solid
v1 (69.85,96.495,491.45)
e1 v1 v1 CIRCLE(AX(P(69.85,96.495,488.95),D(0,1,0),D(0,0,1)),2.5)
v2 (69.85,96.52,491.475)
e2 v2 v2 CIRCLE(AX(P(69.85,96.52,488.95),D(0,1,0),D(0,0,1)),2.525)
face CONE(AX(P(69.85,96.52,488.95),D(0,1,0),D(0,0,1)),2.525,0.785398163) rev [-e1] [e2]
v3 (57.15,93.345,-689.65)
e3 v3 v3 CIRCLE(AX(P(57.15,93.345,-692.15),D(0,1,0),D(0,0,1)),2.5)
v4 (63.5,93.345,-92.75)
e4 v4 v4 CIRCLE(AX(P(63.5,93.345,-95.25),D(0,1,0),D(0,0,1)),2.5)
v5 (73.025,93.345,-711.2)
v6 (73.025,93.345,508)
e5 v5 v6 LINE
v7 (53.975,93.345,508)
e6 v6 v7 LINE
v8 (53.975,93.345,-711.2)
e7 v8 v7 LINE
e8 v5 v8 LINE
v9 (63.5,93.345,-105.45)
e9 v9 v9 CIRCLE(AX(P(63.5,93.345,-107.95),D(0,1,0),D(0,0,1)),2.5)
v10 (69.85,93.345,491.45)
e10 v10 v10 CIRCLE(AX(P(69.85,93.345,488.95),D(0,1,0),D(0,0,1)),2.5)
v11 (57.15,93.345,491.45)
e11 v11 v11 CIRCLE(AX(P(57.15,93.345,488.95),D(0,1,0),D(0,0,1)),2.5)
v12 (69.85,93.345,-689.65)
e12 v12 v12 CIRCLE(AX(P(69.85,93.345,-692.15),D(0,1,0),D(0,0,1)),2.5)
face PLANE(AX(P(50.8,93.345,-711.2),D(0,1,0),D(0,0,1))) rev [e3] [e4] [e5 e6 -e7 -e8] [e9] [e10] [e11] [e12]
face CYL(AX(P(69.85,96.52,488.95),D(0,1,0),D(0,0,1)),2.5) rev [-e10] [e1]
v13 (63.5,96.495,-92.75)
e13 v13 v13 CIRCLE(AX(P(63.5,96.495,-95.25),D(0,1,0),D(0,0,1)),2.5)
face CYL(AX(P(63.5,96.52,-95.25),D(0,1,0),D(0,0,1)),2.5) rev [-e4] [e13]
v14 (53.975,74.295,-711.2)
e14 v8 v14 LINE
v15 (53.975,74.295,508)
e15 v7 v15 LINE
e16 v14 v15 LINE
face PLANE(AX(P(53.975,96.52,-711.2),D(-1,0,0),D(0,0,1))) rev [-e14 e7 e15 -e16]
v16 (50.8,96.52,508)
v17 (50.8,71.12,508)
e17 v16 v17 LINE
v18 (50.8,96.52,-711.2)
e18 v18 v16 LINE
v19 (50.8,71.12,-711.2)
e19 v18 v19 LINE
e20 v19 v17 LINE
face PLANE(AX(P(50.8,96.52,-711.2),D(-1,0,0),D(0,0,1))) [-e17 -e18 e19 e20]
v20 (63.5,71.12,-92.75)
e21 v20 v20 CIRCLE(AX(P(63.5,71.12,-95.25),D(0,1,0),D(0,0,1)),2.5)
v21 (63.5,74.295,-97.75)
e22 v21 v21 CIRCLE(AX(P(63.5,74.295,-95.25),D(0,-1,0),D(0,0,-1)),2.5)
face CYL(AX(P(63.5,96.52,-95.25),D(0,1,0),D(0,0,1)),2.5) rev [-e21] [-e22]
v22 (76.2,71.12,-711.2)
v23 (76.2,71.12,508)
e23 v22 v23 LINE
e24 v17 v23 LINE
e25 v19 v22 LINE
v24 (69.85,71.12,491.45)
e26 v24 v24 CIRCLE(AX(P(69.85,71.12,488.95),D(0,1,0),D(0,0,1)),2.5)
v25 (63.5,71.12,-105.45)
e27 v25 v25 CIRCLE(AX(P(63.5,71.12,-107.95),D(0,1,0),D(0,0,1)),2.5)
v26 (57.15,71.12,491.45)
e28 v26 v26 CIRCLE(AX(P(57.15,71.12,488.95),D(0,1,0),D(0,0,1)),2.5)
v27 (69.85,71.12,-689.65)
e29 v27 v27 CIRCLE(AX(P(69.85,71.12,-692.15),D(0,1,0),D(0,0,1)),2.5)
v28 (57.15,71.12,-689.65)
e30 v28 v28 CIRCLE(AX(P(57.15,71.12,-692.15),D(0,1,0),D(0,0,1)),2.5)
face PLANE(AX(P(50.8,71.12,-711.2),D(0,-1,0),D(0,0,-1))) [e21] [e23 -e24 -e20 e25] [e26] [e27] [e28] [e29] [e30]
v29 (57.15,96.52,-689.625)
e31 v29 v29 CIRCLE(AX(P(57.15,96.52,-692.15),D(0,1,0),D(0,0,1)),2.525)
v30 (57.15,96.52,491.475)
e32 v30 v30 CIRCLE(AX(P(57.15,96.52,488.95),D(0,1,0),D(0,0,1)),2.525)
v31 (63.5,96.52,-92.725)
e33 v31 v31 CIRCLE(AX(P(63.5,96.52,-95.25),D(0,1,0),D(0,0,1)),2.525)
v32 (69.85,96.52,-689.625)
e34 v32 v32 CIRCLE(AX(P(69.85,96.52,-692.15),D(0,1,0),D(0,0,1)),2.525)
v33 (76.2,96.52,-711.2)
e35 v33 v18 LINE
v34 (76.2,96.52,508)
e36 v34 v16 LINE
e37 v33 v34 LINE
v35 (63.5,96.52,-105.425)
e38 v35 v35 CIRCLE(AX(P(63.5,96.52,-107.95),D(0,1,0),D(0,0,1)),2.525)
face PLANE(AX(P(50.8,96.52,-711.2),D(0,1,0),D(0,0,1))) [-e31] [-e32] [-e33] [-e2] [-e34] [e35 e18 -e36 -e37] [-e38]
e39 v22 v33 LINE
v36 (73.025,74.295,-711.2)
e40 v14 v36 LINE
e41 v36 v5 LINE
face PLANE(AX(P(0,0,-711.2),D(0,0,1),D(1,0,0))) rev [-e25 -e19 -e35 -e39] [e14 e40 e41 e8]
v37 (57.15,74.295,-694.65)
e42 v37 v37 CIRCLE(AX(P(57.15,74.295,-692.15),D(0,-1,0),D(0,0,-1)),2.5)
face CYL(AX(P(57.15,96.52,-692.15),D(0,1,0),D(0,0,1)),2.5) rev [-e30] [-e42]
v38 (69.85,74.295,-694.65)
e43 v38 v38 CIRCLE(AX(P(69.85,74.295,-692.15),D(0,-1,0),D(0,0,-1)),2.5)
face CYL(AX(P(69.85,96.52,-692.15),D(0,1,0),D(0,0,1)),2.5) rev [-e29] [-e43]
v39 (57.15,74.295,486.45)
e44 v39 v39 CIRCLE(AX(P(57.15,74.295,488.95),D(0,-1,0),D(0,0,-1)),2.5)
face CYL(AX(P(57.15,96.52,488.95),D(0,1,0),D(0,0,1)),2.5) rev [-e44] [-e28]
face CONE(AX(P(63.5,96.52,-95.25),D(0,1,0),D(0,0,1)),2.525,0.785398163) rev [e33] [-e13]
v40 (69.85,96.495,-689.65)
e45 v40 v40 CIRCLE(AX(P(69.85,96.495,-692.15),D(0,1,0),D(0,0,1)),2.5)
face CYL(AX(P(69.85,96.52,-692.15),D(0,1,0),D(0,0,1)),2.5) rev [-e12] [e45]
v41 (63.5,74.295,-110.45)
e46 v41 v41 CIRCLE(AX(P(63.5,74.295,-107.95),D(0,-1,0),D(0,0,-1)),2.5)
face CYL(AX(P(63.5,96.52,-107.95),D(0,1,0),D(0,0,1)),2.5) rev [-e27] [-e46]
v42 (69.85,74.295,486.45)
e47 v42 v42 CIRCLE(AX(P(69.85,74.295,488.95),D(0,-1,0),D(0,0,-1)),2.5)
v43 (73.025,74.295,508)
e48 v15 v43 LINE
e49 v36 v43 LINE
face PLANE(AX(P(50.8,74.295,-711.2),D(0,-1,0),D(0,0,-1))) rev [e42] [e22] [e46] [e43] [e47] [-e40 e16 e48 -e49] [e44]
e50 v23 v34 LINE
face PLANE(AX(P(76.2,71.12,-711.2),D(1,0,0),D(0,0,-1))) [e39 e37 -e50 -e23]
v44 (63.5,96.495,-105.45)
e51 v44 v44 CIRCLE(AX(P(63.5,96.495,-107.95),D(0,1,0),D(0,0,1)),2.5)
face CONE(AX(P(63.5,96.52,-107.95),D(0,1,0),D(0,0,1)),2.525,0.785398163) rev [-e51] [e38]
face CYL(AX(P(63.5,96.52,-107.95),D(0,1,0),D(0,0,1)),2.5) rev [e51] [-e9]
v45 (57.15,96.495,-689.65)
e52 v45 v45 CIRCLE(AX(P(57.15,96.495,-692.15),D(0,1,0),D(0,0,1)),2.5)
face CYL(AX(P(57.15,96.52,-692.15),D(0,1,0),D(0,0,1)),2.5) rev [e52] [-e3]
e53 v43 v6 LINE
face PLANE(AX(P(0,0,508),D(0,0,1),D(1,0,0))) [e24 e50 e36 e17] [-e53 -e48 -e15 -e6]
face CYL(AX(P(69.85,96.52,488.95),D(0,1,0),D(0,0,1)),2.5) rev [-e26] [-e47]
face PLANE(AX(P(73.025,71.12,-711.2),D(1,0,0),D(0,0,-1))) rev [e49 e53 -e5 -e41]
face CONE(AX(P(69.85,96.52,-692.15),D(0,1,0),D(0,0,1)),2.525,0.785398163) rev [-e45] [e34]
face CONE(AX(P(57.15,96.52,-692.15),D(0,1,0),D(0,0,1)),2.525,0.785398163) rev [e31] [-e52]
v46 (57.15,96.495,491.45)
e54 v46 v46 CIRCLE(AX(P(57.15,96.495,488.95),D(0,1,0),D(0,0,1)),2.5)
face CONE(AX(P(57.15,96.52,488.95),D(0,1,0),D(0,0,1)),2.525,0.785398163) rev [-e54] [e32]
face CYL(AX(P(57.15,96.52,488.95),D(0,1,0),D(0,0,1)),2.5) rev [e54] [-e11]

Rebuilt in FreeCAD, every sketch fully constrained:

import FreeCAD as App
import Part
import Sketcher

V = App.Vector
Q = App.Units.Quantity

doc = App.newDocument("Part")
params = doc.addObject("Spreadsheet::Sheet", "Params")
for row, (alias, value) in enumerate([
    ("sketch1_width", "1 in"),
    ("sketch1_width2", "0.75 in"),
    ("pad1_length", "48 in"),
    ("hole_diameter", "5 mm"),
    ("hole_csink_diameter", "5.05 mm"),
], start=1):
    params.set(f"A{row}", alias)
    params.set(f"B{row}", "=" + value)
    params.setAlias(f"B{row}", alias)

body = doc.addObject("PartDesign::Body", "Body")

sketch1 = doc.addObject("Sketcher::SketchObject", "Sketch")
body.addObject(sketch1)
sketch1.AttachmentSupport = (doc.XY_Plane, [""])
sketch1.MapMode = "FlatFace"
sketch1.AttachmentOffset = App.Placement(V(0, 0, 20 * 25.4), App.Rotation())
sketch1.addGeometry(Part.LineSegment(V(50.8, 96.52, 0), V(50.8, 71.12, 0)), False)
sketch1.addGeometry(Part.LineSegment(V(50.8, 71.12, 0), V(76.2, 71.12, 0)), False)
sketch1.addGeometry(Part.LineSegment(V(76.2, 71.12, 0), V(76.2, 96.52, 0)), False)
sketch1.addGeometry(Part.LineSegment(V(76.2, 96.52, 0), V(50.8, 96.52, 0)), False)
sketch1.addGeometry(Part.LineSegment(V(73.025, 74.295, 0), V(53.975, 74.295, 0)), False)
sketch1.addGeometry(Part.LineSegment(V(53.975, 74.295, 0), V(53.975, 93.345, 0)), False)
sketch1.addGeometry(Part.LineSegment(V(53.975, 93.345, 0), V(73.025, 93.345, 0)), False)
sketch1.addGeometry(Part.LineSegment(V(73.025, 93.345, 0), V(73.025, 74.295, 0)), False)
sketch1.addConstraint(Sketcher.Constraint("Coincident", 0, 2, 1, 1))
sketch1.addConstraint(Sketcher.Constraint("Coincident", 1, 2, 2, 1))
sketch1.addConstraint(Sketcher.Constraint("Coincident", 2, 2, 3, 1))
sketch1.addConstraint(Sketcher.Constraint("Coincident", 3, 2, 0, 1))
sketch1.addConstraint(Sketcher.Constraint("Coincident", 4, 2, 5, 1))
sketch1.addConstraint(Sketcher.Constraint("Coincident", 5, 2, 6, 1))
sketch1.addConstraint(Sketcher.Constraint("Coincident", 6, 2, 7, 1))
sketch1.addConstraint(Sketcher.Constraint("Coincident", 7, 2, 4, 1))
sketch1.addConstraint(Sketcher.Constraint("Vertical", 0))
sketch1.addConstraint(Sketcher.Constraint("Horizontal", 1))
sketch1.addConstraint(Sketcher.Constraint("Vertical", 2))
sketch1.addConstraint(Sketcher.Constraint("Horizontal", 3))
sketch1.addConstraint(Sketcher.Constraint("Horizontal", 4))
sketch1.addConstraint(Sketcher.Constraint("Vertical", 5))
sketch1.addConstraint(Sketcher.Constraint("Horizontal", 6))
sketch1.addConstraint(Sketcher.Constraint("Vertical", 7))
sketch1.addConstraint(Sketcher.Constraint("Equal", 3, 0))
sketch1.addConstraint(Sketcher.Constraint("Equal", 6, 5))
sketch1.addConstraint(Sketcher.Constraint("DistanceX", 1, 1, 1, 2, Q("1 in")))
sketch1.addConstraint(Sketcher.Constraint("DistanceX", -1, 1, 0, 2, Q("2 in")))
sketch1.addConstraint(Sketcher.Constraint("DistanceX", 4, 2, 4, 1, Q("0.75 in")))
sketch1.addConstraint(Sketcher.Constraint("DistanceY", -1, 1, 0, 2, Q("2.8 in")))
sketch1.addConstraint(Sketcher.Constraint("DistanceX", -1, 1, 4, 2, Q("2.125 in")))
sketch1.addConstraint(Sketcher.Constraint("DistanceY", -1, 1, 4, 2, Q("2.925 in")))
sketch1.setExpression("Constraints[18]", "Params.sketch1_width")
sketch1.setExpression("Constraints[20]", "Params.sketch1_width2")
pad1 = doc.addObject("PartDesign::Pad", "Pad")
body.addObject(pad1)
pad1.Profile = sketch1
pad1.setExpression("Length", "Params.pad1_length")
pad1.Reversed = True

sketch2 = doc.addObject("Sketcher::SketchObject", "Sketch001")
body.addObject(sketch2)
sketch2.AttachmentSupport = (doc.XZ_Plane, [""])
sketch2.MapMode = "FlatFace"
sketch2.AttachmentOffset = App.Placement(V(0, 0, -3.8 * 25.4), App.Rotation())
sketch2.addGeometry(Part.Circle(V(63.5, -107.95, 0), V(0, 0, 1), 2.5), False)
sketch2.addGeometry(Part.Circle(V(63.5, -95.25, 0), V(0, 0, 1), 2.5), False)
sketch2.addGeometry(Part.Circle(V(57.15, -692.15, 0), V(0, 0, 1), 2.5), False)
sketch2.addGeometry(Part.Circle(V(69.85, -692.15, 0), V(0, 0, 1), 2.5), False)
sketch2.addConstraint(Sketcher.Constraint("Equal", 0, 1))
sketch2.addConstraint(Sketcher.Constraint("Equal", 1, 2))
sketch2.addConstraint(Sketcher.Constraint("Equal", 2, 3))
sketch2.addConstraint(Sketcher.Constraint("Horizontal", 2, 3, 3, 3))
sketch2.addConstraint(Sketcher.Constraint("Vertical", 0, 3, 1, 3))
sketch2.addConstraint(Sketcher.Constraint("DistanceY", 2, 3, 0, 3, Q("23 in")))
sketch2.addConstraint(Sketcher.Constraint("DistanceX", -1, 1, 0, 3, Q("2.5 in")))
sketch2.addConstraint(Sketcher.Constraint("DistanceY", 0, 3, 1, 3, Q("0.5 in")))
sketch2.addConstraint(Sketcher.Constraint("DistanceX", 2, 3, 3, 3, Q("0.5 in")))
sketch2.addConstraint(Sketcher.Constraint("Diameter", 0, 5.0))
sketch2.addConstraint(Sketcher.Constraint("DistanceY", 0, 3, -1, 1, Q("4.25 in")))
sketch2.addConstraint(Sketcher.Constraint("DistanceX", -1, 1, 2, 3, Q("2.25 in")))
doc.recompute()
hole = doc.addObject("PartDesign::Hole", "Hole")
body.addObject(hole)
hole.Profile = sketch2
hole.ThreadType = "None"
hole.setExpression("Diameter", "Params.hole_diameter")
hole.DepthType = "ThroughAll"
hole.HoleCutType = "Countersink"
hole.setExpression("HoleCutDiameter", "Params.hole_csink_diameter")
hole.HoleCutCountersinkAngle = 90
hole.Reversed = True
doc.recompute()

datumplane = doc.addObject("PartDesign::Plane", "DatumPlane")
body.addObject(datumplane)
datumplane.AttachmentSupport = (doc.XY_Plane, [""])
datumplane.MapMode = "FlatFace"
datumplane.AttachmentOffset = App.Placement(V(0, 0, -4 * 25.4), App.Rotation())
mirrored = doc.addObject("PartDesign::Mirrored", "Mirrored")
body.addObject(mirrored)
mirrored.Originals = [hole]
mirrored.MirrorPlane = (datumplane, [""])
body.Tip = mirrored

doc.recompute()
